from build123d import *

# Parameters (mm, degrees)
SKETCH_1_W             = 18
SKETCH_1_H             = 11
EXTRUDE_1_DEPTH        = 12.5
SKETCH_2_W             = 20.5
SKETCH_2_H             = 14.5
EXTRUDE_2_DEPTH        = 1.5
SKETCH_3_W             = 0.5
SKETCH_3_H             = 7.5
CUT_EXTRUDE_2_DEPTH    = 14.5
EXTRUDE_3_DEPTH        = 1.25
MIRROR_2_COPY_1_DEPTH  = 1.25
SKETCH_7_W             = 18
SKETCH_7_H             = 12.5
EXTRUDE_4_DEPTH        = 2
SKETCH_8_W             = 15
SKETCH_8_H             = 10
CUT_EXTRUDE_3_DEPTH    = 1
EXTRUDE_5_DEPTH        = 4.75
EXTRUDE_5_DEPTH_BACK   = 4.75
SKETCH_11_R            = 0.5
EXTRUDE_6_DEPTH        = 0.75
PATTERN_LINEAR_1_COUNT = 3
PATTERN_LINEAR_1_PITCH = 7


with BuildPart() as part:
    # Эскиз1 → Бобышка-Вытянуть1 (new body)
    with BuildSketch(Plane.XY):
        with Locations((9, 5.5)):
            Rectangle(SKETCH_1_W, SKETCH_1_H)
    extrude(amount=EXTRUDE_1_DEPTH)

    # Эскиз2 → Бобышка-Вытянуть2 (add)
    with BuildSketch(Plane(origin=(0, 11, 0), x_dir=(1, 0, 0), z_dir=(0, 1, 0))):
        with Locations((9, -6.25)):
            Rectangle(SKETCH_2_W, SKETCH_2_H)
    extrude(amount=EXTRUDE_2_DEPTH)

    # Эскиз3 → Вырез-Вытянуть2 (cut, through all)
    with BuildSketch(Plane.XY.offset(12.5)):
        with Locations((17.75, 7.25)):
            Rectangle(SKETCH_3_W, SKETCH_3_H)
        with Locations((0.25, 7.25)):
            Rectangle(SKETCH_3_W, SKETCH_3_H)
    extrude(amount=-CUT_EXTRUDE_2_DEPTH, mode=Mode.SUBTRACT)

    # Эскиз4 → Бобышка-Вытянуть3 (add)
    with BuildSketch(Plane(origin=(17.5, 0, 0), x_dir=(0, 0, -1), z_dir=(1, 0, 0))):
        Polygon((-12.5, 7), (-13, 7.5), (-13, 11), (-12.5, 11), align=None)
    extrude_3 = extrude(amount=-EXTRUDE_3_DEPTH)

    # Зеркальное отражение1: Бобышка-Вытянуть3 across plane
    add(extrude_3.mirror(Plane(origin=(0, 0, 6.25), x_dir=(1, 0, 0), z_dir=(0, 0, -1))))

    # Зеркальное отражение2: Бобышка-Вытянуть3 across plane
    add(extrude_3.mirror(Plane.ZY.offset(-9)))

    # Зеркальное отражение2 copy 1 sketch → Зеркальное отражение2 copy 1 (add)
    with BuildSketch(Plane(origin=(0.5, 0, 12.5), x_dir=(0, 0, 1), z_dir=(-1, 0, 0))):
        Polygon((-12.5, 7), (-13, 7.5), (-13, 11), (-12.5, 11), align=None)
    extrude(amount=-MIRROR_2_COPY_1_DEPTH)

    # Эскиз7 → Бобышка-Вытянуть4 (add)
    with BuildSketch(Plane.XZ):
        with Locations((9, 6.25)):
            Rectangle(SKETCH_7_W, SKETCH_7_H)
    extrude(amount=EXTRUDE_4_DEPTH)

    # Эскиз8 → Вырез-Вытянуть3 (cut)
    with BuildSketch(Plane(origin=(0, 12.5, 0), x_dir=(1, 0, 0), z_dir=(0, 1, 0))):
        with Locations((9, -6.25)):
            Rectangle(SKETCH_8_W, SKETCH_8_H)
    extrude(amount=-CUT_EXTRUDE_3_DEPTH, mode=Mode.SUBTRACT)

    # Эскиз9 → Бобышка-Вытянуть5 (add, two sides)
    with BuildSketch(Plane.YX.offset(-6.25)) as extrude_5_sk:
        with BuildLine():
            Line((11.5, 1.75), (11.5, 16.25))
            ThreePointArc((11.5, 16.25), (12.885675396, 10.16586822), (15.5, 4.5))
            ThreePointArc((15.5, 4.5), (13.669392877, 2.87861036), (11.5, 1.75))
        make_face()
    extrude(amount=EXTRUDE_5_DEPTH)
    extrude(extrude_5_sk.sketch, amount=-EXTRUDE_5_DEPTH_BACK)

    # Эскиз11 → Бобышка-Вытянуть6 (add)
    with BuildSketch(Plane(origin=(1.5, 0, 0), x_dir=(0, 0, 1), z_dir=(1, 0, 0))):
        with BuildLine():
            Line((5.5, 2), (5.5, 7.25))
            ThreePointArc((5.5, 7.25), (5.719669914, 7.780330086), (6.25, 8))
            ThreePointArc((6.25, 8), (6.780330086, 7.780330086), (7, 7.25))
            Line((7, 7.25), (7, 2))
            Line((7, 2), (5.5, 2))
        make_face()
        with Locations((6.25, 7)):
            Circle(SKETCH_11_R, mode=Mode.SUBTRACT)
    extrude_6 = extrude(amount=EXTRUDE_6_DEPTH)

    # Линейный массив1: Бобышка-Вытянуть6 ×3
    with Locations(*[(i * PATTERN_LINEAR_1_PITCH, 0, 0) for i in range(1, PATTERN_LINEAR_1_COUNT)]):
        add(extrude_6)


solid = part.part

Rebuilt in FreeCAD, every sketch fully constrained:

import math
import FreeCAD as App
import Part
import Sketcher
from FreeCAD import Vector
Q = App.Units.Quantity

doc = App.newDocument("Part")
body = doc.addObject("PartDesign::Body", "Body")

sketch1 = body.newObject("Sketcher::SketchObject", "Sketch")
sketch1.AttachmentSupport = (doc.getObject("XY_Plane"), [""])
sketch1.MapMode = "FlatFace"
sketch1.addGeometry(Part.LineSegment(Vector(0, 11, 0), Vector(0, 0, 0)), False)
sketch1.addGeometry(Part.LineSegment(Vector(0, 0, 0), Vector(18, 0, 0)), False)
sketch1.addGeometry(Part.LineSegment(Vector(18, 0, 0), Vector(18, 11, 0)), False)
sketch1.addGeometry(Part.LineSegment(Vector(18, 11, 0), Vector(0, 11, 0)), False)
sketch1.addConstraint(Sketcher.Constraint("Coincident", 0, 2, 1, 1))
sketch1.addConstraint(Sketcher.Constraint("Coincident", 1, 2, 2, 1))
sketch1.addConstraint(Sketcher.Constraint("Coincident", 2, 2, 3, 1))
sketch1.addConstraint(Sketcher.Constraint("Coincident", 3, 2, 0, 1))
sketch1.addConstraint(Sketcher.Constraint("Vertical", 0))
sketch1.addConstraint(Sketcher.Constraint("Horizontal", 1))
sketch1.addConstraint(Sketcher.Constraint("Vertical", 2))
sketch1.addConstraint(Sketcher.Constraint("Horizontal", 3))
sketch1.addConstraint(Sketcher.Constraint("Coincident", 0, 2, -1, 1))
sketch1.addConstraint(Sketcher.Constraint("DistanceX", 1, 1, 1, 2, 18.0))
sketch1.addConstraint(Sketcher.Constraint("DistanceY", 0, 2, 0, 1, 11.0))
pad1 = body.newObject("PartDesign::Pad", "Pad")
pad1.Profile = sketch1
pad1.Length = 12.5

sketch2 = body.newObject("Sketcher::SketchObject", "Sketch001")
sketch2.AttachmentSupport = (doc.getObject("XZ_Plane"), [""])
sketch2.MapMode = "FlatFace"
sketch2.AttachmentOffset = App.Placement(Vector(0, 0, -11), App.Rotation())
sketch2.addGeometry(Part.LineSegment(Vector(-1, -1, 0), Vector(-1, 14, 0)), False)
sketch2.addGeometry(Part.LineSegment(Vector(-1, 14, 0), Vector(19, 14, 0)), False)
sketch2.addGeometry(Part.LineSegment(Vector(19, 14, 0), Vector(19, -1, 0)), False)
sketch2.addGeometry(Part.LineSegment(Vector(19, -1, 0), Vector(-1, -1, 0)), False)
sketch2.addConstraint(Sketcher.Constraint("Coincident", 0, 2, 1, 1))
sketch2.addConstraint(Sketcher.Constraint("Coincident", 1, 2, 2, 1))
sketch2.addConstraint(Sketcher.Constraint("Coincident", 2, 2, 3, 1))
sketch2.addConstraint(Sketcher.Constraint("Coincident", 3, 2, 0, 1))
sketch2.addConstraint(Sketcher.Constraint("Vertical", 0))
sketch2.addConstraint(Sketcher.Constraint("Horizontal", 1))
sketch2.addConstraint(Sketcher.Constraint("Vertical", 2))
sketch2.addConstraint(Sketcher.Constraint("Horizontal", 3))
sketch2.addConstraint(Sketcher.Constraint("DistanceX", 1, 1, 1, 2, 20.5))
sketch2.addConstraint(Sketcher.Constraint("DistanceY", 0, 1, 0, 2, 14.5))
sketch2.addConstraint(Sketcher.Constraint("DistanceY", 2, 2, -1, 1, 1.0))
sketch2.addConstraint(Sketcher.Constraint("DistanceX", 0, 2, -1, 1, 1.25))
pad2 = body.newObject("PartDesign::Pad", "Pad001")
pad2.Profile = sketch2
pad2.Length = 1.5
pad2.Reversed = True

sketch3 = body.newObject("Sketcher::SketchObject", "Sketch002")
sketch3.AttachmentSupport = (doc.getObject("XY_Plane"), [""])
sketch3.MapMode = "FlatFace"
sketch3.AttachmentOffset = App.Placement(Vector(0, 0, 12.5), App.Rotation())
sketch3.addGeometry(Part.LineSegment(Vector(17.5, 11, 0), Vector(17.5, 3.5, 0)), False)
sketch3.addGeometry(Part.LineSegment(Vector(17.5, 3.5, 0), Vector(18, 3.5, 0)), False)
sketch3.addGeometry(Part.LineSegment(Vector(18, 3.5, 0), Vector(18, 11, 0)), False)
sketch3.addGeometry(Part.LineSegment(Vector(18, 11, 0), Vector(17.5, 11, 0)), False)
sketch3.addGeometry(Part.LineSegment(Vector(0, 11, 0), Vector(0, 3.5, 0)), False)
sketch3.addGeometry(Part.LineSegment(Vector(0, 3.5, 0), Vector(0.5, 3.5, 0)), False)
sketch3.addGeometry(Part.LineSegment(Vector(0.5, 3.5, 0), Vector(0.5, 11, 0)), False)
sketch3.addGeometry(Part.LineSegment(Vector(0.5, 11, 0), Vector(0, 11, 0)), False)
sketch3.addConstraint(Sketcher.Constraint("Coincident", 0, 2, 1, 1))
sketch3.addConstraint(Sketcher.Constraint("Coincident", 1, 2, 2, 1))
sketch3.addConstraint(Sketcher.Constraint("Coincident", 2, 2, 3, 1))
sketch3.addConstraint(Sketcher.Constraint("Coincident", 3, 2, 0, 1))
sketch3.addConstraint(Sketcher.Constraint("Coincident", 4, 2, 5, 1))
sketch3.addConstraint(Sketcher.Constraint("Coincident", 5, 2, 6, 1))
sketch3.addConstraint(Sketcher.Constraint("Coincident", 6, 2, 7, 1))
sketch3.addConstraint(Sketcher.Constraint("Coincident", 7, 2, 4, 1))
sketch3.addConstraint(Sketcher.Constraint("Vertical", 0))
sketch3.addConstraint(Sketcher.Constraint("Horizontal", 1))
sketch3.addConstraint(Sketcher.Constraint("Vertical", 2))
sketch3.addConstraint(Sketcher.Constraint("Horizontal", 3))
sketch3.addConstraint(Sketcher.Constraint("Vertical", 4))
sketch3.addConstraint(Sketcher.Constraint("Horizontal", 5))
sketch3.addConstraint(Sketcher.Constraint("Vertical", 6))
sketch3.addConstraint(Sketcher.Constraint("Horizontal", 7))
sketch3.addConstraint(Sketcher.Constraint("PointOnObject", 4, 2, -2))
sketch3.addConstraint(Sketcher.Constraint("Horizontal", 1, 2, 4, 2))
sketch3.addConstraint(Sketcher.Constraint("Horizontal", 3, 2, 6, 2))
sketch3.addConstraint(Sketcher.Constraint("Equal", 3, 5))
sketch3.addConstraint(Sketcher.Constraint("DistanceX", 1, 1, 1, 2, 0.5))
sketch3.addConstraint(Sketcher.Constraint("DistanceY", 0, 2, 0, 1, 7.5))
sketch3.addConstraint(Sketcher.Constraint("DistanceX", -1, 1, 1, 2, 18.0))
sketch3.addConstraint(Sketcher.Constraint("DistanceY", -1, 1, 2, 2, 11.0))
pocket1 = body.newObject("PartDesign::Pocket", "Pocket")
pocket1.Profile = sketch3
pocket1.Type = "ThroughAll"

sketch4 = body.newObject("Sketcher::SketchObject", "Sketch003")
sketch4.AttachmentSupport = (doc.getObject("YZ_Plane"), [""])
sketch4.MapMode = "FlatFace"
sketch4.AttachmentOffset = App.Placement(Vector(0, 0, 17.5), App.Rotation())
sketch4.addGeometry(Part.LineSegment(Vector(7.5, 13, 0), Vector(7, 12.5, 0)), False)
sketch4.addGeometry(Part.LineSegment(Vector(7, 12.5, 0), Vector(11, 12.5, 0)), False)
sketch4.addGeometry(Part.LineSegment(Vector(11, 12.5, 0), Vector(11, 13, 0)), False)
sketch4.addGeometry(Part.LineSegment(Vector(11, 13, 0), Vector(7.5, 13, 0)), False)
sketch4.addConstraint(Sketcher.Constraint("Coincident", 0, 2, 1, 1))
sketch4.addConstraint(Sketcher.Constraint("Coincident", 1, 2, 2, 1))
sketch4.addConstraint(Sketcher.Constraint("Coincident", 2, 2, 3, 1))
sketch4.addConstraint(Sketcher.Constraint("Coincident", 3, 2, 0, 1))
sketch4.addConstraint(Sketcher.Constraint("Horizontal", 1))
sketch4.addConstraint(Sketcher.Constraint("Vertical", 2))
sketch4.addConstraint(Sketcher.Constraint("Horizontal", 3))
sketch4.addConstraint(Sketcher.Constraint("DistanceX", 1, 1, 1, 2, 4.0))
sketch4.addConstraint(Sketcher.Constraint("Angle", 0, Q("-135 deg")))
sketch4.addConstraint(Sketcher.Constraint("DistanceX", 3, 2, 3, 1, 3.5))
sketch4.addConstraint(Sketcher.Constraint("DistanceX", -1, 1, 0, 2, 7.0))
sketch4.addConstraint(Sketcher.Constraint("DistanceY", -1, 1, 2, 2, 13.0))
pad3 = body.newObject("PartDesign::Pad", "Pad002")
pad3.Profile = sketch4
pad3.Length = 1.25
pad3.Reversed = True
doc.recompute()

datumplane = body.newObject("PartDesign::Plane", "DatumPlane")
datumplane.AttachmentSupport = (doc.getObject("XY_Plane"), [""])
datumplane.MapMode = "FlatFace"
datumplane.AttachmentOffset = App.Placement(Vector(0, 0, 6.25), App.Rotation())
mirrored = body.newObject("PartDesign::Mirrored", "Mirrored")
mirrored.Originals = [pad3]
mirrored.MirrorPlane = (datumplane, [""])
body.Tip = mirrored
doc.recompute()

datumplane2 = body.newObject("PartDesign::Plane", "DatumPlane001")
datumplane2.AttachmentSupport = (doc.getObject("YZ_Plane"), [""])
datumplane2.MapMode = "FlatFace"
datumplane2.AttachmentOffset = App.Placement(Vector(0, 0, 9), App.Rotation())
mirrored2 = body.newObject("PartDesign::Mirrored", "Mirrored001")
mirrored2.Originals = [pad3]
mirrored2.MirrorPlane = (datumplane2, [""])
body.Tip = mirrored2

sketch5 = body.newObject("Sketcher::SketchObject", "Sketch004")
sketch5.AttachmentSupport = (doc.getObject("YZ_Plane"), [""])
sketch5.MapMode = "FlatFace"
sketch5.AttachmentOffset = App.Placement(Vector(0, 0, 0.5), App.Rotation())
sketch5.addGeometry(Part.LineSegment(Vector(7.5, -0.5, 0), Vector(7, 0, 0)), False)
sketch5.addGeometry(Part.LineSegment(Vector(7, 0, 0), Vector(11, 0, 0)), False)
sketch5.addGeometry(Part.LineSegment(Vector(11, 0, 0), Vector(11, -0.5, 0)), False)
sketch5.addGeometry(Part.LineSegment(Vector(11, -0.5, 0), Vector(7.5, -0.5, 0)), False)
sketch5.addConstraint(Sketcher.Constraint("Coincident", 0, 2, 1, 1))
sketch5.addConstraint(Sketcher.Constraint("Coincident", 1, 2, 2, 1))
sketch5.addConstraint(Sketcher.Constraint("Coincident", 2, 2, 3, 1))
sketch5.addConstraint(Sketcher.Constraint("Coincident", 3, 2, 0, 1))
sketch5.addConstraint(Sketcher.Constraint("Horizontal", 1))
sketch5.addConstraint(Sketcher.Constraint("Vertical", 2))
sketch5.addConstraint(Sketcher.Constraint("Horizontal", 3))
sketch5.addConstraint(Sketcher.Constraint("PointOnObject", 0, 2, -1))
sketch5.addConstraint(Sketcher.Constraint("DistanceX", 1, 1, 1, 2, 4.0))
sketch5.addConstraint(Sketcher.Constraint("Angle", 0, Q("135 deg")))
sketch5.addConstraint(Sketcher.Constraint("DistanceX", 3, 2, 3, 1, 3.5))
sketch5.addConstraint(Sketcher.Constraint("DistanceX", -1, 1, 0, 2, 7.0))
pad4 = body.newObject("PartDesign::Pad", "Pad003")
pad4.Profile = sketch5
pad4.Length = 1.25

sketch6 = body.newObject("Sketcher::SketchObject", "Sketch005")
sketch6.AttachmentSupport = (doc.getObject("XZ_Plane"), [""])
sketch6.MapMode = "FlatFace"
sketch6.addGeometry(Part.LineSegment(Vector(0, 12, 0), Vector(0, 0, 0)), False)
sketch6.addGeometry(Part.LineSegment(Vector(0, 0, 0), Vector(18, 0, 0)), False)
sketch6.addGeometry(Part.LineSegment(Vector(18, 0, 0), Vector(18, 12, 0)), False)
sketch6.addGeometry(Part.LineSegment(Vector(18, 12, 0), Vector(0, 12, 0)), False)
sketch6.addConstraint(Sketcher.Constraint("Coincident", 0, 2, 1, 1))
sketch6.addConstraint(Sketcher.Constraint("Coincident", 1, 2, 2, 1))
sketch6.addConstraint(Sketcher.Constraint("Coincident", 2, 2, 3, 1))
sketch6.addConstraint(Sketcher.Constraint("Coincident", 3, 2, 0, 1))
sketch6.addConstraint(Sketcher.Constraint("Vertical", 0))
sketch6.addConstraint(Sketcher.Constraint("Horizontal", 1))
sketch6.addConstraint(Sketcher.Constraint("Vertical", 2))
sketch6.addConstraint(Sketcher.Constraint("Horizontal", 3))
sketch6.addConstraint(Sketcher.Constraint("Coincident", 0, 2, -1, 1))
sketch6.addConstraint(Sketcher.Constraint("DistanceX", 1, 1, 1, 2, 18.0))
sketch6.addConstraint(Sketcher.Constraint("DistanceY", 0, 2, 0, 1, 12.5))
pad5 = body.newObject("PartDesign::Pad", "Pad004")
pad5.Profile = sketch6
pad5.Length = 2

sketch7 = body.newObject("Sketcher::SketchObject", "Sketch006")
sketch7.AttachmentSupport = (doc.getObject("XZ_Plane"), [""])
sketch7.MapMode = "FlatFace"
sketch7.AttachmentOffset = App.Placement(Vector(0, 0, -12.5), App.Rotation())
sketch7.addGeometry(Part.LineSegment(Vector(2, 1, 0), Vector(2, 11, 0)), False)
sketch7.addGeometry(Part.LineSegment(Vector(2, 11, 0), Vector(16, 11, 0)), False)
sketch7.addGeometry(Part.LineSegment(Vector(16, 11, 0), Vector(16, 1, 0)), False)
sketch7.addGeometry(Part.LineSegment(Vector(16, 1, 0), Vector(2, 1, 0)), False)
sketch7.addConstraint(Sketcher.Constraint("Coincident", 0, 2, 1, 1))
sketch7.addConstraint(Sketcher.Constraint("Coincident", 1, 2, 2, 1))
sketch7.addConstraint(Sketcher.Constraint("Coincident", 2, 2, 3, 1))
sketch7.addConstraint(Sketcher.Constraint("Coincident", 3, 2, 0, 1))
sketch7.addConstraint(Sketcher.Constraint("Vertical", 0))
sketch7.addConstraint(Sketcher.Constraint("Horizontal", 1))
sketch7.addConstraint(Sketcher.Constraint("Vertical", 2))
sketch7.addConstraint(Sketcher.Constraint("Horizontal", 3))
sketch7.addConstraint(Sketcher.Constraint("DistanceX", 1, 1, 1, 2, 15.0))
sketch7.addConstraint(Sketcher.Constraint("DistanceY", 0, 1, 0, 2, 10.0))
sketch7.addConstraint(Sketcher.Constraint("DistanceX", -1, 1, 0, 2, 1.5))
sketch7.addConstraint(Sketcher.Constraint("DistanceY", -1, 1, 0, 2, 11.25))
pocket2 = body.newObject("PartDesign::Pocket", "Pocket001")
pocket2.Profile = sketch7
pocket2.Length = 1
pocket2.Reversed = True

sketch8 = body.newObject("Sketcher::SketchObject", "Sketch007")
sketch8.AttachmentSupport = (doc.getObject("XY_Plane"), [""])
sketch8.MapMode = "FlatFace"
sketch8.AttachmentOffset = App.Placement(Vector(0, 0, 6.25), App.Rotation())
sketch8.addGeometry(Part.LineSegment(Vector(16.2, 11.5, 0), Vector(1.8, 11.5, 0)), False)
sketch8.addGeometry(Part.ArcOfCircle(Part.Circle(Vector(11.1, 8, 0), Vector(0, 0, 1), 10), math.radians(131), math.radians(160)), False)
sketch8.addGeometry(Part.ArcOfCircle(Part.Circle(Vector(19.8, 41.3, 0), Vector(0, 0, 1), 30), math.radians(-121), math.radians(-97)), False)
sketch8.addConstraint(Sketcher.Constraint("Coincident", 0, 2, 1, 2))
sketch8.addConstraint(Sketcher.Constraint("Coincident", 1, 1, 2, 1))
sketch8.addConstraint(Sketcher.Constraint("Coincident", 2, 2, 0, 1))
sketch8.addConstraint(Sketcher.Constraint("Horizontal", 0))
sketch8.addConstraint(Sketcher.Constraint("Radius", 1, 10.0))
sketch8.addConstraint(Sketcher.Constraint("Radius", 2, 30.0))
sketch8.addConstraint(Sketcher.Constraint("DistanceX", 0, 2, 0, 1, 14.5))
sketch8.addConstraint(Sketcher.Constraint("DistanceY", 0, 2, 1, 1, 4.0))
sketch8.addConstraint(Sketcher.Constraint("DistanceY", -1, 1, 0, 2, 11.5))
sketch8.addConstraint(Sketcher.Constraint("DistanceX", -1, 1, 1, 1, 4.5))
sketch8.addConstraint(Sketcher.Constraint("DistanceX", -1, 1, 0, 2, 1.75))
pad6 = body.newObject("PartDesign::Pad", "Pad005")
pad6.Profile = sketch8
pad6.Type = "TwoLengths"
pad6.Length = 4.75
pad6.Length2 = 4.75
pad6.Reversed = True

sketch9 = body.newObject("Sketcher::SketchObject", "Sketch008")
sketch9.AttachmentSupport = (doc.getObject("YZ_Plane"), [""])
sketch9.MapMode = "FlatFace"
sketch9.AttachmentOffset = App.Placement(Vector(0, 0, 1.5), App.Rotation())
sketch9.addGeometry(Part.LineSegment(Vector(-7.2, 5.5, 0), Vector(-2, 5.5, 0)), False)
sketch9.addGeometry(Part.LineSegment(Vector(-2, 5.5, 0), Vector(-2, 7, 0)), False)
sketch9.addGeometry(Part.LineSegment(Vector(-2, 7, 0), Vector(-7.2, 7, 0)), False)
sketch9.addGeometry(Part.ArcOfCircle(Part.Circle(Vector(-7.2, 6.2, 0), Vector(0, 0, 1), 0.8), math.radians(90), math.radians(180)), False)
sketch9.addGeometry(Part.ArcOfCircle(Part.Circle(Vector(-7.2, 6.2, 0), Vector(0, 0, 1), 0.8), math.radians(180), math.radians(270)), False)
sketch9.addGeometry(Part.Circle(Vector(-7, 6.2, 0), Vector(0, 0, 1), 0.5), False)
sketch9.addConstraint(Sketcher.Constraint("Coincident", 0, 2, 1, 1))
sketch9.addConstraint(Sketcher.Constraint("Coincident", 1, 2, 2, 1))
sketch9.addConstraint(Sketcher.Constraint("Tangent", 2, 2, 3, 1))
sketch9.addConstraint(Sketcher.Constraint("Tangent", 3, 2, 4, 1))
sketch9.addConstraint(Sketcher.Constraint("Tangent", 4, 2, 0, 1))
sketch9.addConstraint(Sketcher.Constraint("Horizontal", 0))
sketch9.addConstraint(Sketcher.Constraint("Vertical", 1))
sketch9.addConstraint(Sketcher.Constraint("Horizontal", 2))
sketch9.addConstraint(Sketcher.Constraint("Equal", 3, 4))
sketch9.addConstraint(Sketcher.Constraint("Horizontal", 4, 3, 5, 3))
sketch9.addConstraint(Sketcher.Constraint("Horizontal", 5, 3, 3, 2))
sketch9.addConstraint(Sketcher.Constraint("Diameter", 5, 1.0))
sketch9.addConstraint(Sketcher.Constraint("Radius", 3, 0.75))
sketch9.addConstraint(Sketcher.Constraint("DistanceX", 5, 3, -1, 1, 7.0))
sketch9.addConstraint(Sketcher.Constraint("DistanceX", 0, 2, -1, 1, 2.0))
sketch9.addConstraint(Sketcher.Constraint("DistanceY", -1, 1, 1, 2, 7.0))
sketch9.addConstraint(Sketcher.Constraint("DistanceX", 3, 2, -1, 1, 8.0))
pad7 = body.newObject("PartDesign::Pad", "Pad006")
pad7.Profile = sketch9
pad7.Length = 0.75
doc.recompute()

linearpattern = body.newObject("PartDesign::LinearPattern", "LinearPattern")
linearpattern.Originals = [pad7]
linearpattern.Direction = (doc.getObject("X_Axis"), [""])
linearpattern.Mode = "offset"
linearpattern.Offset = 7
linearpattern.Occurrences = 3
body.Tip = linearpattern

doc.recompute()
